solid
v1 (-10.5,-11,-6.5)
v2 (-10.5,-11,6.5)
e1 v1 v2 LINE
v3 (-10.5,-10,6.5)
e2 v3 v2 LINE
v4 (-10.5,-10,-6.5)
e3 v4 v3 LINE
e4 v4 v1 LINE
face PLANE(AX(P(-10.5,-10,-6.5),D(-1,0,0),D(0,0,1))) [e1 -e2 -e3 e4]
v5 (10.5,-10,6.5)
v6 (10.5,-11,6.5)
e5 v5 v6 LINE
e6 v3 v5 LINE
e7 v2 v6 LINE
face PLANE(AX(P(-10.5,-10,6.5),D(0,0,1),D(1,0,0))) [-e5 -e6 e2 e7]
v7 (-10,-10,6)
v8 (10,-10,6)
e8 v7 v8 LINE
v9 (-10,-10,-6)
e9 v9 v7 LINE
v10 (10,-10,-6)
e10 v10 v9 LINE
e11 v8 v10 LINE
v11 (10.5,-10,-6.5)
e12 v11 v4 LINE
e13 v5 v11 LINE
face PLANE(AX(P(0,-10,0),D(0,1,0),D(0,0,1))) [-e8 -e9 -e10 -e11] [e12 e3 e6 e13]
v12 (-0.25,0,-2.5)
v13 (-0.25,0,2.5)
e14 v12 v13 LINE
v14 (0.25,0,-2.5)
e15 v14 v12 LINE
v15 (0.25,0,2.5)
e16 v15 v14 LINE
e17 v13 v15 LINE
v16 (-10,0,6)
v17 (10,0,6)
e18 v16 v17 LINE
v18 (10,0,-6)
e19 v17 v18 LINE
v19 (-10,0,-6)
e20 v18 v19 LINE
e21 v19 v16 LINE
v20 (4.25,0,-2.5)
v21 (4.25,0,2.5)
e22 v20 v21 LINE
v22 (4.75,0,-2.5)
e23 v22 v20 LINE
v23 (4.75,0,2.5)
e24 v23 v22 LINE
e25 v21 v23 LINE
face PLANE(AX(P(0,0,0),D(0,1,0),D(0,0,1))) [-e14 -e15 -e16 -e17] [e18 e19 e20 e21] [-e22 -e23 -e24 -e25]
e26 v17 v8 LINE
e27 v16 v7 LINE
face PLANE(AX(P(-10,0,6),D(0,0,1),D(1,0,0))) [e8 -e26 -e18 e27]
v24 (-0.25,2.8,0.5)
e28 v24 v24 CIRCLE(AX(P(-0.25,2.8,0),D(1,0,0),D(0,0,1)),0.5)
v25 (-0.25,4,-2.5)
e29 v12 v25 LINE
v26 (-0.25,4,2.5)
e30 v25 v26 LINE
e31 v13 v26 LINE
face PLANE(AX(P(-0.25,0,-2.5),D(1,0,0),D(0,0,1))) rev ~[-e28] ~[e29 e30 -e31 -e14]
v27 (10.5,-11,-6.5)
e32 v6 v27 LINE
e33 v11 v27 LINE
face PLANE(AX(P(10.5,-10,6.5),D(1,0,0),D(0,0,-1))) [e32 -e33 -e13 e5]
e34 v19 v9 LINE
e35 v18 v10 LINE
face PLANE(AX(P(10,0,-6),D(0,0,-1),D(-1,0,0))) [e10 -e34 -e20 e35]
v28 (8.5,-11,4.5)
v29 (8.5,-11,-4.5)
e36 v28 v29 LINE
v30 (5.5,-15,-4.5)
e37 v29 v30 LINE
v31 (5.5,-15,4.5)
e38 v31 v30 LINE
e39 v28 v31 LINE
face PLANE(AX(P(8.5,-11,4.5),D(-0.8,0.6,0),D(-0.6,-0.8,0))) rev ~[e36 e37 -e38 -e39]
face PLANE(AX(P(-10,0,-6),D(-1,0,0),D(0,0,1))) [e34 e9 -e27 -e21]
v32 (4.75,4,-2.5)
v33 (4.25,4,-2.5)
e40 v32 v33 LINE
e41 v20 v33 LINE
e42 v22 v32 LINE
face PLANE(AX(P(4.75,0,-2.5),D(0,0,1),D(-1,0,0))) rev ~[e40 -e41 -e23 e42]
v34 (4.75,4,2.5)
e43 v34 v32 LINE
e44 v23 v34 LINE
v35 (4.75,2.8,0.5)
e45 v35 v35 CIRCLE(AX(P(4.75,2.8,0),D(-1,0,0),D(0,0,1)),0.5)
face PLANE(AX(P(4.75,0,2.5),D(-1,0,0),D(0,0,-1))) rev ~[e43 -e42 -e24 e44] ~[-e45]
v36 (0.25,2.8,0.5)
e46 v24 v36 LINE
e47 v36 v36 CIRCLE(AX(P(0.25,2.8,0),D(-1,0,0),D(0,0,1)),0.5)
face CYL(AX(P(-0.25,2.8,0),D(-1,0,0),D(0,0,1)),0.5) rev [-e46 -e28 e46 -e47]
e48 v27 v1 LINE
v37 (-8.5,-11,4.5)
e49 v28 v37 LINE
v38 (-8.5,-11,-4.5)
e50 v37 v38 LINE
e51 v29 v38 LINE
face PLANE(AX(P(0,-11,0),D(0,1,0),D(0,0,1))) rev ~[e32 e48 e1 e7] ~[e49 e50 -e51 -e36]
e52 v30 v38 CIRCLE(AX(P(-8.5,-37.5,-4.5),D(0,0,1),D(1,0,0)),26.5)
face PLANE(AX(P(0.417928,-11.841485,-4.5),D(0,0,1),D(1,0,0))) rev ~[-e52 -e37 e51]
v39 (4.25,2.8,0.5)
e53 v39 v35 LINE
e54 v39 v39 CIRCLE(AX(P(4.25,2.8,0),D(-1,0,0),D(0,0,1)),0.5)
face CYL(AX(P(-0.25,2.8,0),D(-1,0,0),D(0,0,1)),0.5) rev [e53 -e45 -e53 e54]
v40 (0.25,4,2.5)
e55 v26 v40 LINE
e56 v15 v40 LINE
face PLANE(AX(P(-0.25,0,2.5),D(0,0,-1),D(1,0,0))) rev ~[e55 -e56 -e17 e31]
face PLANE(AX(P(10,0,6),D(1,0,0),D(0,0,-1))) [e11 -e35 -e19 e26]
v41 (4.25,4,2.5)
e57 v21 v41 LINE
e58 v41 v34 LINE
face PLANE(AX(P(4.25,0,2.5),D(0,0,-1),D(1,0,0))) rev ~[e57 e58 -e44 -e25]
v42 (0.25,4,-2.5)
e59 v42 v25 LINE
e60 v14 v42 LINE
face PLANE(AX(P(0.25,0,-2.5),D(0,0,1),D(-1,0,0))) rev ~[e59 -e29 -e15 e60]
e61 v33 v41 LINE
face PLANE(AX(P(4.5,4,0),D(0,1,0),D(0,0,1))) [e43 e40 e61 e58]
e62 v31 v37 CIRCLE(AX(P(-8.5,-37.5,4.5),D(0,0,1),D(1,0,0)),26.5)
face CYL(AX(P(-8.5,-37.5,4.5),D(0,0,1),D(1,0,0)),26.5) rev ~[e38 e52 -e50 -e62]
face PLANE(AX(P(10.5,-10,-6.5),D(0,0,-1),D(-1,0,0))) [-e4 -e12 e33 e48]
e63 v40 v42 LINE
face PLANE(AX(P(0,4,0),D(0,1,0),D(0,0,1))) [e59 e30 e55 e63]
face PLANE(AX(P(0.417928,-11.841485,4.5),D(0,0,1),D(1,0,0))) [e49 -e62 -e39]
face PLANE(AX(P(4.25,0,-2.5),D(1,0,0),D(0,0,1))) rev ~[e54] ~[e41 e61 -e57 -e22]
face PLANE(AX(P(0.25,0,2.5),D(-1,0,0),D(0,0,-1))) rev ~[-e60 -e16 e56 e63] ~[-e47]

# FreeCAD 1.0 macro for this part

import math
import FreeCAD as App
import Part
import Sketcher

doc = App.newDocument("Part")
params = doc.addObject("Spreadsheet::Sheet", "Params")
for row, (alias, value) in enumerate([
    ("sketch1_height", "12 mm"),
    ("pad1_length", "10 mm"),
    ("sketch2_width", "21 mm"),
    ("sketch2_height", "13 mm"),
    ("pad2_length", "1 mm"),
    ("sketch3_radius", "26.5 mm"),
    ("sketch3_length", "5 mm"),
    ("pad3_length", "9 mm"),
    ("sketch4_height", "5 mm"),
    ("pad4_length", "4 mm"),
    ("sketch5_diameter", "1 mm"),
    ("hole_diameter", "1 mm"),
], start=1):
    params.set(f"A{row}", alias)
    params.set(f"B{row}", "=" + value)
    params.setAlias(f"B{row}", alias)

body = doc.addObject("PartDesign::Body", "Body")

sketch1 = doc.addObject("Sketcher::SketchObject", "Sketch")
body.addObject(sketch1)
sketch1.AttachmentSupport = (doc.XZ_Plane, [""])
sketch1.MapMode = "FlatFace"
sketch1.addGeometry(Part.LineSegment(App.Vector(10, 6, 0), App.Vector(-10, 6, 0)), False)
sketch1.addGeometry(Part.LineSegment(App.Vector(-10, 6, 0), App.Vector(-10, -6, 0)), False)
sketch1.addGeometry(Part.LineSegment(App.Vector(-10, -6, 0), App.Vector(10, -6, 0)), False)
sketch1.addGeometry(Part.LineSegment(App.Vector(10, -6, 0), App.Vector(10, 6, 0)), False)
sketch1.addConstraint(Sketcher.Constraint("Coincident", 0, 2, 1, 1))
sketch1.addConstraint(Sketcher.Constraint("Coincident", 1, 2, 2, 1))
sketch1.addConstraint(Sketcher.Constraint("Coincident", 2, 2, 3, 1))
sketch1.addConstraint(Sketcher.Constraint("Coincident", 3, 2, 0, 1))
sketch1.addConstraint(Sketcher.Constraint("Horizontal", 0))
sketch1.addConstraint(Sketcher.Constraint("Vertical", 1))
sketch1.addConstraint(Sketcher.Constraint("Horizontal", 2))
sketch1.addConstraint(Sketcher.Constraint("Vertical", 3))
sketch1.addConstraint(Sketcher.Constraint("Symmetric", 0, 2, 2, 2, -1, 1))
sketch1.addConstraint(Sketcher.Constraint("DistanceX", 0, 2, -1, 1, 10.0))
sketch1.addConstraint(Sketcher.Constraint("DistanceY", 1, 2, 1, 1, 12.0))
sketch1.setExpression("Constraints[10]", "Params.sketch1_height")
pad1 = doc.addObject("PartDesign::Pad", "Pad")
body.addObject(pad1)
pad1.Profile = sketch1
pad1.setExpression("Length", "Params.pad1_length")

sketch2 = doc.addObject("Sketcher::SketchObject", "Sketch001")
body.addObject(sketch2)
sketch2.AttachmentSupport = (doc.XZ_Plane, [""])
sketch2.MapMode = "FlatFace"
sketch2.AttachmentOffset = App.Placement(App.Vector(0, 0, 10), App.Rotation())
sketch2.addGeometry(Part.LineSegment(App.Vector(10, 6, 0), App.Vector(-10, 6, 0)), False)
sketch2.addGeometry(Part.LineSegment(App.Vector(-10, 6, 0), App.Vector(-10, -6, 0)), False)
sketch2.addGeometry(Part.LineSegment(App.Vector(-10, -6, 0), App.Vector(10, -6, 0)), False)
sketch2.addGeometry(Part.LineSegment(App.Vector(10, -6, 0), App.Vector(10, 6, 0)), False)
sketch2.addConstraint(Sketcher.Constraint("Coincident", 0, 2, 1, 1))
sketch2.addConstraint(Sketcher.Constraint("Coincident", 1, 2, 2, 1))
sketch2.addConstraint(Sketcher.Constraint("Coincident", 2, 2, 3, 1))
sketch2.addConstraint(Sketcher.Constraint("Coincident", 3, 2, 0, 1))
sketch2.addConstraint(Sketcher.Constraint("Horizontal", 0))
sketch2.addConstraint(Sketcher.Constraint("Vertical", 1))
sketch2.addConstraint(Sketcher.Constraint("Horizontal", 2))
sketch2.addConstraint(Sketcher.Constraint("Vertical", 3))
sketch2.addConstraint(Sketcher.Constraint("Symmetric", 0, 2, 2, 2, -1, 1))
sketch2.addConstraint(Sketcher.Constraint("DistanceX", 0, 2, 0, 1, 21.0))
sketch2.addConstraint(Sketcher.Constraint("DistanceY", 1, 2, 1, 1, 13.0))
sketch2.setExpression("Constraints[9]", "Params.sketch2_width")
sketch2.setExpression("Constraints[10]", "Params.sketch2_height")
pad2 = doc.addObject("PartDesign::Pad", "Pad001")
body.addObject(pad2)
pad2.Profile = sketch2
pad2.setExpression("Length", "Params.pad2_length")

sketch3 = doc.addObject("Sketcher::SketchObject", "Sketch002")
body.addObject(sketch3)
sketch3.AttachmentSupport = (doc.XY_Plane, [""])
sketch3.MapMode = "FlatFace"
sketch3.AttachmentOffset = App.Placement(App.Vector(0, 0, 4.5), App.Rotation())
sketch3.addGeometry(Part.LineSegment(App.Vector(6, -15, 0), App.Vector(8, -11, 0)), False)
sketch3.addGeometry(Part.LineSegment(App.Vector(8, -11, 0), App.Vector(-8, -11, 0)), False)
sketch3.addGeometry(Part.ArcOfCircle(Part.Circle(App.Vector(-8, -38, 0), App.Vector(0, 0, 1), 26), math.radians(58), math.radians(90)), False)
sketch3.addConstraint(Sketcher.Constraint("Coincident", 0, 2, 1, 1))
sketch3.addConstraint(Sketcher.Constraint("Tangent", 1, 2, 2, 2))
sketch3.addConstraint(Sketcher.Constraint("Coincident", 2, 1, 0, 1))
sketch3.addConstraint(Sketcher.Constraint("Horizontal", 1))
sketch3.addConstraint(Sketcher.Constraint("DistanceX", 2, 3, -1, 1, 8.5))
sketch3.addConstraint(Sketcher.Constraint("DistanceX", -1, 1, 0, 2, 8.5))
sketch3.addConstraint(Sketcher.Constraint("Radius", 2, 26.5))
sketch3.addConstraint(Sketcher.Constraint("Distance", 0, 5.0))
sketch3.addConstraint(Sketcher.Constraint("DistanceY", 0, 2, -1, 1, 11.0))
sketch3.setExpression("Constraints[6]", "Params.sketch3_radius")
sketch3.setExpression("Constraints[7]", "Params.sketch3_length")
pad3 = doc.addObject("PartDesign::Pad", "Pad002")
body.addObject(pad3)
pad3.Profile = sketch3
pad3.setExpression("Length", "Params.pad3_length")
pad3.Reversed = True

sketch4 = doc.addObject("Sketcher::SketchObject", "Sketch003")
body.addObject(sketch4)
sketch4.AttachmentSupport = (doc.XZ_Plane, [""])
sketch4.MapMode = "FlatFace"
sketch4.addGeometry(Part.LineSegment(App.Vector(4.8, 2.5, 0), App.Vector(4.8, -2.5, 0)), False)
sketch4.addGeometry(Part.LineSegment(App.Vector(4.8, -2.5, 0), App.Vector(4.2, -2.5, 0)), False)
sketch4.addGeometry(Part.LineSegment(App.Vector(4.2, -2.5, 0), App.Vector(4.2, 2.5, 0)), False)
sketch4.addGeometry(Part.LineSegment(App.Vector(4.2, 2.5, 0), App.Vector(4.8, 2.5, 0)), False)
sketch4.addGeometry(Part.LineSegment(App.Vector(0.2, 2.5, 0), App.Vector(0.2, -2.5, 0)), False)
sketch4.addGeometry(Part.LineSegment(App.Vector(0.2, -2.5, 0), App.Vector(-0.2, -2.5, 0)), False)
sketch4.addGeometry(Part.LineSegment(App.Vector(-0.2, -2.5, 0), App.Vector(-0.2, 2.5, 0)), False)
sketch4.addGeometry(Part.LineSegment(App.Vector(-0.2, 2.5, 0), App.Vector(0.2, 2.5, 0)), False)
sketch4.addConstraint(Sketcher.Constraint("Coincident", 0, 2, 1, 1))
sketch4.addConstraint(Sketcher.Constraint("Coincident", 1, 2, 2, 1))
sketch4.addConstraint(Sketcher.Constraint("Coincident", 2, 2, 3, 1))
sketch4.addConstraint(Sketcher.Constraint("Coincident", 3, 2, 0, 1))
sketch4.addConstraint(Sketcher.Constraint("Coincident", 4, 2, 5, 1))
sketch4.addConstraint(Sketcher.Constraint("Coincident", 5, 2, 6, 1))
sketch4.addConstraint(Sketcher.Constraint("Coincident", 6, 2, 7, 1))
sketch4.addConstraint(Sketcher.Constraint("Coincident", 7, 2, 4, 1))
sketch4.addConstraint(Sketcher.Constraint("Vertical", 0))
sketch4.addConstraint(Sketcher.Constraint("Horizontal", 1))
sketch4.addConstraint(Sketcher.Constraint("Vertical", 2))
sketch4.addConstraint(Sketcher.Constraint("Horizontal", 3))
sketch4.addConstraint(Sketcher.Constraint("Vertical", 4))
sketch4.addConstraint(Sketcher.Constraint("Horizontal", 5))
sketch4.addConstraint(Sketcher.Constraint("Vertical", 6))
sketch4.addConstraint(Sketcher.Constraint("Horizontal", 7))
sketch4.addConstraint(Sketcher.Constraint("Symmetric", 4, 2, 6, 2, -1, 1))
sketch4.addConstraint(Sketcher.Constraint("Horizontal", 1, 2, 4, 2))
sketch4.addConstraint(Sketcher.Constraint("Horizontal", 3, 2, 6, 2))
sketch4.addConstraint(Sketcher.Constraint("Equal", 3, 5))
sketch4.addConstraint(Sketcher.Constraint("DistanceY", 0, 2, 0, 1, 5.0))
sketch4.addConstraint(Sketcher.Constraint("DistanceX", -1, 1, 0, 2, 4.75))
sketch4.addConstraint(Sketcher.Constraint("DistanceX", -1, 1, 1, 2, 4.25))
sketch4.setExpression("Constraints[20]", "Params.sketch4_height")
pad4 = doc.addObject("PartDesign::Pad", "Pad003")
body.addObject(pad4)
pad4.Profile = sketch4
pad4.setExpression("Length", "Params.pad4_length")
pad4.Reversed = True

sketch5 = doc.addObject("Sketcher::SketchObject", "Sketch004")
body.addObject(sketch5)
sketch5.AttachmentSupport = (doc.YZ_Plane, [""])
sketch5.MapMode = "FlatFace"
sketch5.AttachmentOffset = App.Placement(App.Vector(0, 0, -0.25), App.Rotation())
sketch5.addGeometry(Part.Circle(App.Vector(2.8, 0, 0), App.Vector(0, 0, 1), 0.5), False)
sketch5.addConstraint(Sketcher.Constraint("PointOnObject", 0, 3, -1))
sketch5.addConstraint(Sketcher.Constraint("Diameter", 0, 1.0))
sketch5.addConstraint(Sketcher.Constraint("DistanceX", -1, 1, 0, 3, 2.8))
sketch5.setExpression("Constraints[1]", "Params.sketch5_diameter")
doc.recompute()
hole = doc.addObject("PartDesign::Hole", "Hole")
body.addObject(hole)
hole.Profile = sketch5
hole.ThreadType = "None"
hole.setExpression("Diameter", "Params.hole_diameter")
hole.DepthType = "ThroughAll"
hole.Reversed = True

doc.recompute()
